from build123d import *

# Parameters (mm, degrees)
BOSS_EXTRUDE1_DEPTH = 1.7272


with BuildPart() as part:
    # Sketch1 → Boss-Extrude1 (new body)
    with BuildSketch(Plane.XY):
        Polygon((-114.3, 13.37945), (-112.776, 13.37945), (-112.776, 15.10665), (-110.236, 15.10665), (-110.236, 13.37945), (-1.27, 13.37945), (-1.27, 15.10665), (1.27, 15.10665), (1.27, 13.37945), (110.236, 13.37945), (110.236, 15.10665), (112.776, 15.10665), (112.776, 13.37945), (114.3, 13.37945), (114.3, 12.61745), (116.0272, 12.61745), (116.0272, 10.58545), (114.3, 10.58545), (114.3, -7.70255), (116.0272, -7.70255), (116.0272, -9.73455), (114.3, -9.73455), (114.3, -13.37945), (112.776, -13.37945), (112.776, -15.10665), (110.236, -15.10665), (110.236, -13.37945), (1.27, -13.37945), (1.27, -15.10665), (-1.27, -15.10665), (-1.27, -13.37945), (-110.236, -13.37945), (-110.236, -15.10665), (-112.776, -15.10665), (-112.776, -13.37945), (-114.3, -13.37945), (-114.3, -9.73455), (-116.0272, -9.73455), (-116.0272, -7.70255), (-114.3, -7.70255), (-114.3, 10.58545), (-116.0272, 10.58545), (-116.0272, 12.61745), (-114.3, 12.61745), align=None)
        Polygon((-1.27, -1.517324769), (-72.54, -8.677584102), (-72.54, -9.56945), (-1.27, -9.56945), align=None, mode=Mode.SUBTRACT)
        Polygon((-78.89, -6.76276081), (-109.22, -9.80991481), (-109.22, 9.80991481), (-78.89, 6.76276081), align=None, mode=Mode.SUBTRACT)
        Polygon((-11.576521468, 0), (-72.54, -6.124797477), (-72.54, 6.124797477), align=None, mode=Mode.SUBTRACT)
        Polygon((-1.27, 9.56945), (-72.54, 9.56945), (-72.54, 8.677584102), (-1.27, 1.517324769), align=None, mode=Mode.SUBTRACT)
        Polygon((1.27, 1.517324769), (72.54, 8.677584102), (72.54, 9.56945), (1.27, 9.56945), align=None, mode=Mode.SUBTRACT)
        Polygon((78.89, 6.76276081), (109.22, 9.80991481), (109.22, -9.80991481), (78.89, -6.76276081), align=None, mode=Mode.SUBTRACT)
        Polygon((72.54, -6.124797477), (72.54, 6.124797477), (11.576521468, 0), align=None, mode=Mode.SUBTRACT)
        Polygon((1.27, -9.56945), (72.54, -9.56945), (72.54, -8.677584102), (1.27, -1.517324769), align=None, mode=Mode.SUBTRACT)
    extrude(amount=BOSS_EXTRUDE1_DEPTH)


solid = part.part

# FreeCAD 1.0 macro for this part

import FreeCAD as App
import Part
import Sketcher
Q = App.Units.Quantity


def add_polygon(sketch, points):
    """Adds a closed chain of lines whose ends are joined by coincident constraints."""
    first, n = sketch.GeometryCount, len(points)
    for a, b in zip(points, points[1:] + points[:1]):
        sketch.addGeometry(Part.LineSegment(App.Vector(*a, 0), App.Vector(*b, 0)), False)
    for i in range(n):
        sketch.addConstraint(Sketcher.Constraint("Coincident", first + i, 2, first + (i + 1) % n, 1))

doc = App.newDocument("Part")
body = doc.addObject("PartDesign::Body", "Body")

sketch1 = body.newObject("Sketcher::SketchObject", "Sketch")
sketch1.AttachmentSupport = (doc.getObject("XY_Plane"), [""])
sketch1.MapMode = "FlatFace"
add_polygon(sketch1, [(-112.8, 13.4), (-114.3, 13.4), (-114.3, 12.6), (-116, 12.6), (-116, 10.6), (-114.3, 10.6), (-114.3, -7.7), (-116, -7.7), (-116, -9.7), (-114.3, -9.7), (-114.3, -13.4), (-112.8, -13.4), (-112.8, -15.1), (-110.2, -15.1), (-110.2, -13.4), (-1.3, -13.4), (-1.3, -15.1), (1.3, -15.1), (1.3, -13.4), (110.2, -13.4), (110.2, -15.1), (112.8, -15.1), (112.8, -13.4), (114.3, -13.4), (114.3, -9.7), (116, -9.7), (116, -7.7), (114.3, -7.7), (114.3, 10.6), (116, 10.6), (116, 12.6), (114.3, 12.6), (114.3, 13.4), (112.8, 13.4), (112.8, 15.1), (110.2, 15.1), (110.2, 13.4), (1.3, 13.4), (1.3, 15.1), (-1.3, 15.1), (-1.3, 13.4), (-110.2, 13.4), (-110.2, 15.1), (-112.8, 15.1)])
add_polygon(sketch1, [(1.3, -9.6), (1.3, -1.5), (72.5, -8.7), (72.5, -9.6)])
add_polygon(sketch1, [(-1.3, -1.5), (-1.3, -9.6), (-72.5, -9.6), (-72.5, -8.7)])
add_polygon(sketch1, [(78.9, 6.8), (109.2, 9.8), (109.2, -9.8), (78.9, -6.8)])
add_polygon(sketch1, [(72.5, -6.1), (11.6, 0), (72.5, 6.1)])
add_polygon(sketch1, [(1.3, 1.5), (1.3, 9.6), (72.5, 9.6), (72.5, 8.7)])
add_polygon(sketch1, [(-11.6, 0), (-72.5, -6.1), (-72.5, 6.1)])
add_polygon(sketch1, [(-78.9, -6.8), (-109.2, -9.8), (-109.2, 9.8), (-78.9, 6.8)])
add_polygon(sketch1, [(-1.3, 9.6), (-1.3, 1.5), (-72.5, 8.7), (-72.5, 9.6)])
sketch1.addConstraint([
    Sketcher.Constraint("Horizontal", 0),
    Sketcher.Constraint("Vertical", 1),
    Sketcher.Constraint("Horizontal", 2),
    Sketcher.Constraint("Vertical", 3),
    Sketcher.Constraint("Horizontal", 4),
    Sketcher.Constraint("Vertical", 5),
    Sketcher.Constraint("Horizontal", 6),
    Sketcher.Constraint("Vertical", 7),
    Sketcher.Constraint("Horizontal", 8),
    Sketcher.Constraint("Vertical", 9),
    Sketcher.Constraint("Horizontal", 10),
    Sketcher.Constraint("Vertical", 11),
    Sketcher.Constraint("Horizontal", 12),
    Sketcher.Constraint("Vertical", 13),
    Sketcher.Constraint("Horizontal", 14),
    Sketcher.Constraint("Vertical", 15),
    Sketcher.Constraint("Horizontal", 16),
    Sketcher.Constraint("Vertical", 17),
    Sketcher.Constraint("Horizontal", 18),
    Sketcher.Constraint("Vertical", 19),
    Sketcher.Constraint("Horizontal", 20),
    Sketcher.Constraint("Vertical", 21),
    Sketcher.Constraint("Horizontal", 22),
    Sketcher.Constraint("Vertical", 23),
    Sketcher.Constraint("Horizontal", 24),
    Sketcher.Constraint("Vertical", 25),
    Sketcher.Constraint("Horizontal", 26),
    Sketcher.Constraint("Vertical", 27),
    Sketcher.Constraint("Horizontal", 28),
    Sketcher.Constraint("Vertical", 29),
    Sketcher.Constraint("Horizontal", 30),
    Sketcher.Constraint("Vertical", 31),
    Sketcher.Constraint("Horizontal", 32),
    Sketcher.Constraint("Vertical", 33),
    Sketcher.Constraint("Horizontal", 34),
    Sketcher.Constraint("Vertical", 35),
    Sketcher.Constraint("Horizontal", 36),
    Sketcher.Constraint("Vertical", 37),
    Sketcher.Constraint("Horizontal", 38),
    Sketcher.Constraint("Vertical", 39),
    Sketcher.Constraint("Horizontal", 40),
    Sketcher.Constraint("Vertical", 41),
    Sketcher.Constraint("Horizontal", 42),
    Sketcher.Constraint("Vertical", 43),
    Sketcher.Constraint("Vertical", 44),
    Sketcher.Constraint("Vertical", 46),
    Sketcher.Constraint("Horizontal", 47),
    Sketcher.Constraint("Vertical", 48),
    Sketcher.Constraint("Horizontal", 49),
    Sketcher.Constraint("Vertical", 50),
    Sketcher.Constraint("Vertical", 53),
    Sketcher.Constraint("Vertical", 55),
    Sketcher.Constraint("Vertical", 58),
    Sketcher.Constraint("Vertical", 59),
    Sketcher.Constraint("Horizontal", 60),
    Sketcher.Constraint("Vertical", 61),
    Sketcher.Constraint("Vertical", 64),
    Sketcher.Constraint("Vertical", 67),
    Sketcher.Constraint("Vertical", 69),
    Sketcher.Constraint("Vertical", 70),
    Sketcher.Constraint("Vertical", 72),
    Sketcher.Constraint("Horizontal", 73),
    Sketcher.Constraint("Symmetric", 0, 2, 22, 2, -1, 1),
    Sketcher.Constraint("Symmetric", 9, 2, 31, 2, -1, 1),
    Sketcher.Constraint("Symmetric", 11, 2, 33, 2, -1, 1),
    Sketcher.Constraint("Symmetric", 13, 2, 35, 2, -1, 1),
    Sketcher.Constraint("Symmetric", 15, 2, 37, 2, -1, 1),
    Sketcher.Constraint("Symmetric", 17, 2, 39, 2, -1, 1),
    Sketcher.Constraint("Symmetric", 19, 2, 41, 2, -1, 1),
    Sketcher.Constraint("Symmetric", 48, 2, 59, 2, -1, 1),
    Sketcher.Constraint("Symmetric", 50, 2, 61, 2, -1, 1),
    Sketcher.Constraint("Symmetric", 57, 2, 63, 2, -1, 1),
    Sketcher.Constraint("Symmetric", 56, 2, 65, 2, -1, 1),
    Sketcher.Constraint("Symmetric", 52, 2, 66, 2, -1, 1),
    Sketcher.Constraint("Symmetric", 54, 2, 68, 2, -1, 1),
    Sketcher.Constraint("Symmetric", 44, 2, 70, 2, -1, 1),
    Sketcher.Constraint("Symmetric", 45, 2, 71, 2, -1, 1),
    Sketcher.Constraint("Symmetric", 14, 2, 17, 2, -2),
    Sketcher.Constraint("Symmetric", 12, 2, 19, 2, -2),
    Sketcher.Constraint("Symmetric", 10, 2, 21, 2, -2),
    Sketcher.Constraint("Symmetric", 8, 2, 23, 2, -2),
    Sketcher.Constraint("Symmetric", 6, 2, 25, 2, -2),
    Sketcher.Constraint("Symmetric", 4, 2, 27, 2, -2),
    Sketcher.Constraint("Symmetric", 2, 2, 29, 2, -2),
    Sketcher.Constraint("Symmetric", 47, 2, 48, 2, -2),
    Sketcher.Constraint("Symmetric", 45, 2, 50, 2, -2),
    Sketcher.Constraint("PointOnObject", 56, 2, -1),
    Sketcher.Constraint("Parallel", 51, 52),
    Sketcher.Constraint("Parallel", 45, 54),
    Sketcher.Constraint("Parallel", 54, 56),
    Sketcher.Constraint("Parallel", 52, 57),
    Sketcher.Constraint("Parallel", 57, 62),
    Sketcher.Constraint("Parallel", 56, 65),
    Sketcher.Constraint("Parallel", 63, 66),
    Sketcher.Constraint("Parallel", 65, 68),
    Sketcher.Constraint("Horizontal", 10, 2, 13, 2),
    Sketcher.Constraint("Horizontal", 12, 2, 15, 2),
    Sketcher.Constraint("Horizontal", 44, 2, 51, 2),
    Sketcher.Constraint("Horizontal", 53, 2, 66, 2),
    Sketcher.Constraint("Horizontal", 60, 2, 72, 2),
    Sketcher.Constraint("Vertical", 1, 2, 4, 2),
    Sketcher.Constraint("Vertical", 3, 2, 6, 2),
    Sketcher.Constraint("Vertical", 11, 2, 42, 2),
    Sketcher.Constraint("Vertical", 37, 2, 44, 2),
    Sketcher.Constraint("Vertical", 46, 2, 57, 2),
    Sketcher.Constraint("Equal", 12, 16),
    Sketcher.Constraint("Equal", 3, 7),
    Sketcher.Constraint("Equal", 30, 11),
    Sketcher.Constraint("DistanceX", 12, 1, 12, 2, Q("0.1 in")),
    Sketcher.Constraint("DistanceX", 0, 2, 0, 1, Q("0.06 in")),
    Sketcher.Constraint("DistanceX", 14, 1, 14, 2, Q("4.29 in")),
    Sketcher.Constraint("DistanceY", 1, 2, 1, 1, Q("0.03 in")),
    Sketcher.Constraint("DistanceY", 3, 2, 3, 1, Q("0.08 in")),
    Sketcher.Constraint("DistanceY", 5, 2, 5, 1, Q("0.72 in")),
    Sketcher.Constraint("DistanceX", -1, 1, 52, 2, Q("4.3 in")),
    Sketcher.Constraint("DistanceX", 2, 2, 2, 1, Q("0.068 in")),
    Sketcher.Constraint("DistanceY", 9, 2, 9, 1, Q("0.1435 in")),
    Sketcher.Constraint("DistanceX", 47, 2, 47, 1, 71.27),
    Sketcher.Constraint("DistanceY", 53, 2, 53, 1, 19.61983),
    Sketcher.Constraint("DistanceY", 55, 1, 55, 2, 13.525522),
    Sketcher.Constraint("DistanceX", -1, 1, 54, 2, 78.89),
    Sketcher.Constraint("DistanceY", 44, 1, 44, 2, 8.052125),
    Sketcher.Constraint("DistanceY", 58, 2, 58, 1, 12.249595),
    Sketcher.Constraint("DistanceY", 46, 2, -1, 1, 9.56945),
])
pad1 = body.newObject("PartDesign::Pad", "Pad")
pad1.Profile = sketch1
pad1.Length = Q("0.068 in")

doc.recompute()
